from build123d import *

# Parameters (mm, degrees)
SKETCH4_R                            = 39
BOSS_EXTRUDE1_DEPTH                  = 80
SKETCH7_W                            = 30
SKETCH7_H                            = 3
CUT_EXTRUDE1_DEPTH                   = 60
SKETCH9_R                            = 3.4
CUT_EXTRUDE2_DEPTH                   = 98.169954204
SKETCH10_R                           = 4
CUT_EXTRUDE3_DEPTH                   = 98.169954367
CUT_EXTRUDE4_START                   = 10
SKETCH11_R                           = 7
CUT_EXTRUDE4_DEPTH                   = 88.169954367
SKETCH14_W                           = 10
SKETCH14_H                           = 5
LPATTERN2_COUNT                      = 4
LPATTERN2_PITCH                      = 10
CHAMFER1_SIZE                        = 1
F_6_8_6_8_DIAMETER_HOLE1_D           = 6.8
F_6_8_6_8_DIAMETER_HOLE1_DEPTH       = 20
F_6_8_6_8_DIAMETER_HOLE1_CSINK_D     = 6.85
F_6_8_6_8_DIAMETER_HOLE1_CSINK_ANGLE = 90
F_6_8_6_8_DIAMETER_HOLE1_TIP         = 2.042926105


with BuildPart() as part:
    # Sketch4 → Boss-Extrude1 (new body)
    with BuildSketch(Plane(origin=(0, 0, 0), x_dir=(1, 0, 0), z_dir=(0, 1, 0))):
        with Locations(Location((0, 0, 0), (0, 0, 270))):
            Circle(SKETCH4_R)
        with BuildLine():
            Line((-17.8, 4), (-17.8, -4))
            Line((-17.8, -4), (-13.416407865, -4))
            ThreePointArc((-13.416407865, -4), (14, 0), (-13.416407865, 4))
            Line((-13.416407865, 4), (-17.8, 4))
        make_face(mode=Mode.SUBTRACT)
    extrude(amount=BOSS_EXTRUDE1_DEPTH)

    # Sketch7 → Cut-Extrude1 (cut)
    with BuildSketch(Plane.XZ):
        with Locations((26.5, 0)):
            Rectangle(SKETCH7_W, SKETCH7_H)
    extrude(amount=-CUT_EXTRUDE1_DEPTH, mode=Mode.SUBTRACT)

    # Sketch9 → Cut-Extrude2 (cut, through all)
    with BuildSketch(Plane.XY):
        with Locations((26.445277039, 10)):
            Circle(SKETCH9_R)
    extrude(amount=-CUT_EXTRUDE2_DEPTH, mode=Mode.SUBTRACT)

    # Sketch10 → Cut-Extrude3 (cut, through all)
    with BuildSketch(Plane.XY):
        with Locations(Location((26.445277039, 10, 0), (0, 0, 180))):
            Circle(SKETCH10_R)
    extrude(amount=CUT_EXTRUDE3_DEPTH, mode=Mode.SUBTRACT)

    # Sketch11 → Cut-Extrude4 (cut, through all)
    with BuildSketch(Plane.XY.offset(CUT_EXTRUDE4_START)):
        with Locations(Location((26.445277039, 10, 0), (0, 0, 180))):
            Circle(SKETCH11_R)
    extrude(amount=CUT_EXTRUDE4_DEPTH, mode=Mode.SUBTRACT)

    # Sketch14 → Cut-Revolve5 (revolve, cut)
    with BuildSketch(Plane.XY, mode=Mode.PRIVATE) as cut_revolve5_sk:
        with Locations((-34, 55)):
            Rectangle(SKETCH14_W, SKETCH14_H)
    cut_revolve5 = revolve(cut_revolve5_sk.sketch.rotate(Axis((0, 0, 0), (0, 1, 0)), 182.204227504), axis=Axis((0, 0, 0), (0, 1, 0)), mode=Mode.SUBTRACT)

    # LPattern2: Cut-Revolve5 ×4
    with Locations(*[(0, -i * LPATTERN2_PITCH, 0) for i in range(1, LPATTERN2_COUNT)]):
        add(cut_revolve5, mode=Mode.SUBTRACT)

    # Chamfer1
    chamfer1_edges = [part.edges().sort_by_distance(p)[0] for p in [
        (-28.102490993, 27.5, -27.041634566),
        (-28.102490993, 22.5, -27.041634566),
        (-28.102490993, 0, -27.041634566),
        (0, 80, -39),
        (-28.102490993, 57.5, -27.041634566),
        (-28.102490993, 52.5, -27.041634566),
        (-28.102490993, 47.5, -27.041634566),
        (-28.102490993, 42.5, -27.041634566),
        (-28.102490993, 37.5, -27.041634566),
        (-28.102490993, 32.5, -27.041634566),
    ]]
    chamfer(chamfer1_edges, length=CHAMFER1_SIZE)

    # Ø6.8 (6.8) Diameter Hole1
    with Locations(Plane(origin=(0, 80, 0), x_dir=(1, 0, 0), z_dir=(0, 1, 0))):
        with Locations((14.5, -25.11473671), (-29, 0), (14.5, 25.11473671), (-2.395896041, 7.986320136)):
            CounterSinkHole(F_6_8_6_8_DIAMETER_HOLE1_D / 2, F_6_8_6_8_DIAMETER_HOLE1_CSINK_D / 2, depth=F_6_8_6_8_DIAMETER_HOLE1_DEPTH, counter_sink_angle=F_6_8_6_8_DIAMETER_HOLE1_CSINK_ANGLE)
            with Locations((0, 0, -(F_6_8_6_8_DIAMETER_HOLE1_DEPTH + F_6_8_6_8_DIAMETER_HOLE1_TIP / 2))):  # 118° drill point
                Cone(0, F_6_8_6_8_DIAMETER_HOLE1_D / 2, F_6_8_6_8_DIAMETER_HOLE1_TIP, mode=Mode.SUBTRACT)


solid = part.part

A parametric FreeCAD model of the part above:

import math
import FreeCAD as App
import Part
import Sketcher

V = App.Vector
Q = App.Units.Quantity


def edges_at(feature, points):
    """Names of the edges that pass closest to the given points."""
    edges = feature.Shape.Edges
    near = lambda p: min(range(len(edges)), key=lambda i: edges[i].distToShape(Part.Vertex(*p))[0])
    return sorted({f"Edge{near(p) + 1}" for p in points})

doc = App.newDocument("Part")
body = doc.addObject("PartDesign::Body", "Body")

# Sketch on XZ plane
sketch1 = body.newObject("Sketcher::SketchObject", "Sketch")
sketch1.AttachmentSupport = (doc.getObject("XZ_Plane"), [""])
sketch1.MapMode = "FlatFace"
sketch1.addGeometry([
    Part.Circle(V(0, 0, 0), V(0, 0, 1), 39),  # 0
    Part.LineSegment(V(-17.8, 4, 0), V(-17.8, -4, 0)),  # 1
    Part.LineSegment(V(-17.8, -4, 0), V(-13.416408, -4, 0)),  # 2
    Part.ArcOfCircle(Part.Circle(V(0, 0, 0), V(0, 0, 1), 14), math.radians(-163.39845), math.radians(163.39845)),  # 3
    Part.LineSegment(V(-13.416408, 4, 0), V(-17.8, 4, 0)),  # 4
], False)
sketch1.addConstraint([
    Sketcher.Constraint("Coincident", 1, 2, 2, 1),
    Sketcher.Constraint("Coincident", 2, 2, 3, 1),
    Sketcher.Constraint("Coincident", 3, 2, 4, 1),
    Sketcher.Constraint("Coincident", 4, 2, 1, 1),
    Sketcher.Constraint("Vertical", 1),
    Sketcher.Constraint("Horizontal", 2),
    Sketcher.Constraint("Horizontal", 4),
    Sketcher.Constraint("Coincident", 0, 3, -1, 1),
    Sketcher.Constraint("Coincident", 3, 3, -1, 1),
    Sketcher.Constraint("Vertical", 2, 2, 3, 2),
    Sketcher.Constraint("Diameter", 0, Q("78 mm")),
    Sketcher.Constraint("Radius", 3, Q("14 mm")),
    Sketcher.Constraint("DistanceY", 1, 2, 1, 1, Q("8 mm")),
    Sketcher.Constraint("DistanceX", 1, 2, -1, 1, Q("17.8 mm")),
])
pad1 = body.newObject("PartDesign::Pad", "Pad")
pad1.Profile = sketch1
pad1.Length = 80
pad1.Reversed = True

# Sketch on XZ plane
sketch2 = body.newObject("Sketcher::SketchObject", "Sketch001")
sketch2.AttachmentSupport = (doc.getObject("XZ_Plane"), [""])
sketch2.MapMode = "FlatFace"
sketch2.addGeometry([
    Part.LineSegment(V(11.5, 1.5, 0), V(11.5, -1.5, 0)),
    Part.LineSegment(V(11.5, -1.5, 0), V(41.5, -1.5, 0)),
    Part.LineSegment(V(41.5, -1.5, 0), V(41.5, 1.5, 0)),
    Part.LineSegment(V(41.5, 1.5, 0), V(11.5, 1.5, 0)),
], False)
sketch2.addConstraint([
    Sketcher.Constraint("Coincident", 0, 2, 1, 1),
    Sketcher.Constraint("Coincident", 1, 2, 2, 1),
    Sketcher.Constraint("Coincident", 2, 2, 3, 1),
    Sketcher.Constraint("Coincident", 3, 2, 0, 1),
    Sketcher.Constraint("Vertical", 0),
    Sketcher.Constraint("Horizontal", 1),
    Sketcher.Constraint("Vertical", 2),
    Sketcher.Constraint("Horizontal", 3),
    Sketcher.Constraint("DistanceX", 1, 1, 1, 2, Q("30 mm")),
    Sketcher.Constraint("DistanceY", 0, 2, 0, 1, Q("3 mm")),
    Sketcher.Constraint("DistanceX", -1, 1, 0, 2, Q("11.5 mm")),
    Sketcher.Constraint("DistanceY", 0, 2, -1, 1, Q("1.5 mm")),
])
pocket1 = body.newObject("PartDesign::Pocket", "Pocket")
pocket1.Profile = sketch2
pocket1.Length = 60

# Sketch on XY plane
sketch3 = body.newObject("Sketcher::SketchObject", "Sketch002")
sketch3.AttachmentSupport = (doc.getObject("XY_Plane"), [""])
sketch3.MapMode = "FlatFace"
sketch3.addGeometry(Part.Circle(V(26.445277, 10, 0), V(0, 0, 1), 3.4), False)
sketch3.addConstraint([
    Sketcher.Constraint("Diameter", 0, Q("6.8 mm")),
    Sketcher.Constraint("DistanceY", -1, 1, 0, 3, Q("10 mm")),
    Sketcher.Constraint("DistanceX", -1, 1, 0, 3, Q("26.445277 mm")),
])
pocket2 = body.newObject("PartDesign::Pocket", "Pocket001")
pocket2.Profile = sketch3
pocket2.Type = "ThroughAll"

# Sketch on XY plane
sketch4 = body.newObject("Sketcher::SketchObject", "Sketch003")
sketch4.AttachmentSupport = (doc.getObject("XY_Plane"), [""])
sketch4.MapMode = "FlatFace"
sketch4.addGeometry(Part.Circle(V(26.445277, 10, 0), V(0, 0, 1), 4), False)
sketch4.addConstraint([
    Sketcher.Constraint("Diameter", 0, Q("8 mm")),
    Sketcher.Constraint("DistanceY", -1, 1, 0, 3, Q("10 mm")),
    Sketcher.Constraint("DistanceX", -1, 1, 0, 3, Q("26.445277 mm")),
])
pocket3 = body.newObject("PartDesign::Pocket", "Pocket002")
pocket3.Profile = sketch4
pocket3.Type = "ThroughAll"
pocket3.Reversed = True

# Sketch on XY plane
sketch5 = body.newObject("Sketcher::SketchObject", "Sketch004")
sketch5.AttachmentSupport = (doc.getObject("XY_Plane"), [""])
sketch5.MapMode = "FlatFace"
sketch5.AttachmentOffset = App.Placement(V(0, 0, 10), App.Rotation())
sketch5.addGeometry(Part.Circle(V(26.445277, 10, 0), V(0, 0, 1), 7), False)
sketch5.addConstraint([
    Sketcher.Constraint("Diameter", 0, Q("14 mm")),
    Sketcher.Constraint("DistanceY", -1, 1, 0, 3, Q("10 mm")),
    Sketcher.Constraint("DistanceX", -1, 1, 0, 3, Q("26.445277 mm")),
])
pocket4 = body.newObject("PartDesign::Pocket", "Pocket003")
pocket4.Profile = sketch5
pocket4.Type = "ThroughAll"
pocket4.Reversed = True

# Sketch on XY plane
sketch6 = body.newObject("Sketcher::SketchObject", "Sketch005")
sketch6.AttachmentSupport = (doc.getObject("XY_Plane"), [""])
sketch6.MapMode = "FlatFace"
sketch6.addGeometry([
    Part.LineSegment(V(-39, 57.5, 0), V(-39, 52.5, 0)),
    Part.LineSegment(V(-39, 52.5, 0), V(-29, 52.5, 0)),
    Part.LineSegment(V(-29, 52.5, 0), V(-29, 57.5, 0)),
    Part.LineSegment(V(-29, 57.5, 0), V(-39, 57.5, 0)),
], False)
sketch6.addConstraint([
    Sketcher.Constraint("Coincident", 0, 2, 1, 1),
    Sketcher.Constraint("Coincident", 1, 2, 2, 1),
    Sketcher.Constraint("Coincident", 2, 2, 3, 1),
    Sketcher.Constraint("Coincident", 3, 2, 0, 1),
    Sketcher.Constraint("Vertical", 0),
    Sketcher.Constraint("Horizontal", 1),
    Sketcher.Constraint("Vertical", 2),
    Sketcher.Constraint("Horizontal", 3),
    Sketcher.Constraint("DistanceX", 1, 1, 1, 2, Q("10 mm")),
    Sketcher.Constraint("DistanceY", 0, 2, 0, 1, Q("5 mm")),
    Sketcher.Constraint("DistanceX", 0, 2, -1, 1, Q("39 mm")),
    Sketcher.Constraint("DistanceY", -1, 1, 0, 2, Q("52.5 mm")),
])
groove = body.newObject("PartDesign::Groove", "Groove")
groove.Profile = sketch6
groove.ReferenceAxis = (sketch6, ["V_Axis"])
groove.Angle = 360
doc.recompute()

linearpattern = body.newObject("PartDesign::LinearPattern", "LinearPattern")
linearpattern.Originals = [groove]
linearpattern.Direction = (doc.getObject("Y_Axis"), [""])
linearpattern.Mode = "offset"
linearpattern.Offset = 10
linearpattern.Occurrences = 4
linearpattern.Reversed = True
body.Tip = linearpattern
doc.recompute()

chamfer = body.newObject("PartDesign::Chamfer", "Chamfer")
chamfer.Base = (linearpattern, edges_at(linearpattern, [
    (-28.102, 27.5, -27.042),
    (-28.102, 22.5, -27.042),
    (-28.102, 0, -27.042),
    (0, 80, -39),
    (-28.102, 57.5, -27.042),
    (-28.102, 52.5, -27.042),
    (-28.102, 47.5, -27.042),
    (-28.102, 42.5, -27.042),
    (-28.102, 37.5, -27.042),
    (-28.102, 32.5, -27.042),
]))
chamfer.Size = 1

# Sketch on XZ plane
sketch7 = body.newObject("Sketcher::SketchObject", "Sketch006")
sketch7.AttachmentSupport = (doc.getObject("XZ_Plane"), [""])
sketch7.MapMode = "FlatFace"
sketch7.AttachmentOffset = App.Placement(V(0, 0, -80), App.Rotation())
sketch7.addGeometry([
    Part.Circle(V(14.5, 25.114737, 0), V(0, 0, 1), 3.4),
    Part.Circle(V(-29, 0, 0), V(0, 0, 1), 3.4),
    Part.Circle(V(14.5, -25.114737, 0), V(0, 0, 1), 3.4),
    Part.Circle(V(-2.395896, -7.98632, 0), V(0, 0, 1), 3.4),
], False)
sketch7.addConstraint([
    Sketcher.Constraint("Equal", 0, 1),
    Sketcher.Constraint("Equal", 1, 2),
    Sketcher.Constraint("Equal", 2, 3),
    Sketcher.Constraint("Symmetric", 0, 3, 2, 3, -1),
    Sketcher.Constraint("PointOnObject", 1, 3, -1),
    Sketcher.Constraint("Diameter", 0, Q("6.8 mm")),
    Sketcher.Constraint("DistanceX", 1, 3, -1, 1, Q("29 mm")),
    Sketcher.Constraint("DistanceX", -1, 1, 0, 3, Q("14.5 mm")),
    Sketcher.Constraint("DistanceY", 3, 3, -1, 1, Q("7.98632 mm")),
    Sketcher.Constraint("DistanceY", -1, 1, 0, 3, Q("25.114737 mm")),
    Sketcher.Constraint("DistanceX", 3, 3, -1, 1, Q("2.395896 mm")),
])
doc.recompute()
hole = body.newObject("PartDesign::Hole", "Hole")
hole.Profile = sketch7
hole.ThreadType = "None"
hole.Diameter = 6.8
hole.DepthType = "Dimension"
hole.Depth = 20
hole.DrillPoint = "Angled"
hole.DrillPointAngle = 118
hole.HoleCutType = "Countersink"
hole.HoleCutDiameter = 6.85
hole.HoleCutCountersinkAngle = 90
hole.Reversed = True

doc.recompute()
